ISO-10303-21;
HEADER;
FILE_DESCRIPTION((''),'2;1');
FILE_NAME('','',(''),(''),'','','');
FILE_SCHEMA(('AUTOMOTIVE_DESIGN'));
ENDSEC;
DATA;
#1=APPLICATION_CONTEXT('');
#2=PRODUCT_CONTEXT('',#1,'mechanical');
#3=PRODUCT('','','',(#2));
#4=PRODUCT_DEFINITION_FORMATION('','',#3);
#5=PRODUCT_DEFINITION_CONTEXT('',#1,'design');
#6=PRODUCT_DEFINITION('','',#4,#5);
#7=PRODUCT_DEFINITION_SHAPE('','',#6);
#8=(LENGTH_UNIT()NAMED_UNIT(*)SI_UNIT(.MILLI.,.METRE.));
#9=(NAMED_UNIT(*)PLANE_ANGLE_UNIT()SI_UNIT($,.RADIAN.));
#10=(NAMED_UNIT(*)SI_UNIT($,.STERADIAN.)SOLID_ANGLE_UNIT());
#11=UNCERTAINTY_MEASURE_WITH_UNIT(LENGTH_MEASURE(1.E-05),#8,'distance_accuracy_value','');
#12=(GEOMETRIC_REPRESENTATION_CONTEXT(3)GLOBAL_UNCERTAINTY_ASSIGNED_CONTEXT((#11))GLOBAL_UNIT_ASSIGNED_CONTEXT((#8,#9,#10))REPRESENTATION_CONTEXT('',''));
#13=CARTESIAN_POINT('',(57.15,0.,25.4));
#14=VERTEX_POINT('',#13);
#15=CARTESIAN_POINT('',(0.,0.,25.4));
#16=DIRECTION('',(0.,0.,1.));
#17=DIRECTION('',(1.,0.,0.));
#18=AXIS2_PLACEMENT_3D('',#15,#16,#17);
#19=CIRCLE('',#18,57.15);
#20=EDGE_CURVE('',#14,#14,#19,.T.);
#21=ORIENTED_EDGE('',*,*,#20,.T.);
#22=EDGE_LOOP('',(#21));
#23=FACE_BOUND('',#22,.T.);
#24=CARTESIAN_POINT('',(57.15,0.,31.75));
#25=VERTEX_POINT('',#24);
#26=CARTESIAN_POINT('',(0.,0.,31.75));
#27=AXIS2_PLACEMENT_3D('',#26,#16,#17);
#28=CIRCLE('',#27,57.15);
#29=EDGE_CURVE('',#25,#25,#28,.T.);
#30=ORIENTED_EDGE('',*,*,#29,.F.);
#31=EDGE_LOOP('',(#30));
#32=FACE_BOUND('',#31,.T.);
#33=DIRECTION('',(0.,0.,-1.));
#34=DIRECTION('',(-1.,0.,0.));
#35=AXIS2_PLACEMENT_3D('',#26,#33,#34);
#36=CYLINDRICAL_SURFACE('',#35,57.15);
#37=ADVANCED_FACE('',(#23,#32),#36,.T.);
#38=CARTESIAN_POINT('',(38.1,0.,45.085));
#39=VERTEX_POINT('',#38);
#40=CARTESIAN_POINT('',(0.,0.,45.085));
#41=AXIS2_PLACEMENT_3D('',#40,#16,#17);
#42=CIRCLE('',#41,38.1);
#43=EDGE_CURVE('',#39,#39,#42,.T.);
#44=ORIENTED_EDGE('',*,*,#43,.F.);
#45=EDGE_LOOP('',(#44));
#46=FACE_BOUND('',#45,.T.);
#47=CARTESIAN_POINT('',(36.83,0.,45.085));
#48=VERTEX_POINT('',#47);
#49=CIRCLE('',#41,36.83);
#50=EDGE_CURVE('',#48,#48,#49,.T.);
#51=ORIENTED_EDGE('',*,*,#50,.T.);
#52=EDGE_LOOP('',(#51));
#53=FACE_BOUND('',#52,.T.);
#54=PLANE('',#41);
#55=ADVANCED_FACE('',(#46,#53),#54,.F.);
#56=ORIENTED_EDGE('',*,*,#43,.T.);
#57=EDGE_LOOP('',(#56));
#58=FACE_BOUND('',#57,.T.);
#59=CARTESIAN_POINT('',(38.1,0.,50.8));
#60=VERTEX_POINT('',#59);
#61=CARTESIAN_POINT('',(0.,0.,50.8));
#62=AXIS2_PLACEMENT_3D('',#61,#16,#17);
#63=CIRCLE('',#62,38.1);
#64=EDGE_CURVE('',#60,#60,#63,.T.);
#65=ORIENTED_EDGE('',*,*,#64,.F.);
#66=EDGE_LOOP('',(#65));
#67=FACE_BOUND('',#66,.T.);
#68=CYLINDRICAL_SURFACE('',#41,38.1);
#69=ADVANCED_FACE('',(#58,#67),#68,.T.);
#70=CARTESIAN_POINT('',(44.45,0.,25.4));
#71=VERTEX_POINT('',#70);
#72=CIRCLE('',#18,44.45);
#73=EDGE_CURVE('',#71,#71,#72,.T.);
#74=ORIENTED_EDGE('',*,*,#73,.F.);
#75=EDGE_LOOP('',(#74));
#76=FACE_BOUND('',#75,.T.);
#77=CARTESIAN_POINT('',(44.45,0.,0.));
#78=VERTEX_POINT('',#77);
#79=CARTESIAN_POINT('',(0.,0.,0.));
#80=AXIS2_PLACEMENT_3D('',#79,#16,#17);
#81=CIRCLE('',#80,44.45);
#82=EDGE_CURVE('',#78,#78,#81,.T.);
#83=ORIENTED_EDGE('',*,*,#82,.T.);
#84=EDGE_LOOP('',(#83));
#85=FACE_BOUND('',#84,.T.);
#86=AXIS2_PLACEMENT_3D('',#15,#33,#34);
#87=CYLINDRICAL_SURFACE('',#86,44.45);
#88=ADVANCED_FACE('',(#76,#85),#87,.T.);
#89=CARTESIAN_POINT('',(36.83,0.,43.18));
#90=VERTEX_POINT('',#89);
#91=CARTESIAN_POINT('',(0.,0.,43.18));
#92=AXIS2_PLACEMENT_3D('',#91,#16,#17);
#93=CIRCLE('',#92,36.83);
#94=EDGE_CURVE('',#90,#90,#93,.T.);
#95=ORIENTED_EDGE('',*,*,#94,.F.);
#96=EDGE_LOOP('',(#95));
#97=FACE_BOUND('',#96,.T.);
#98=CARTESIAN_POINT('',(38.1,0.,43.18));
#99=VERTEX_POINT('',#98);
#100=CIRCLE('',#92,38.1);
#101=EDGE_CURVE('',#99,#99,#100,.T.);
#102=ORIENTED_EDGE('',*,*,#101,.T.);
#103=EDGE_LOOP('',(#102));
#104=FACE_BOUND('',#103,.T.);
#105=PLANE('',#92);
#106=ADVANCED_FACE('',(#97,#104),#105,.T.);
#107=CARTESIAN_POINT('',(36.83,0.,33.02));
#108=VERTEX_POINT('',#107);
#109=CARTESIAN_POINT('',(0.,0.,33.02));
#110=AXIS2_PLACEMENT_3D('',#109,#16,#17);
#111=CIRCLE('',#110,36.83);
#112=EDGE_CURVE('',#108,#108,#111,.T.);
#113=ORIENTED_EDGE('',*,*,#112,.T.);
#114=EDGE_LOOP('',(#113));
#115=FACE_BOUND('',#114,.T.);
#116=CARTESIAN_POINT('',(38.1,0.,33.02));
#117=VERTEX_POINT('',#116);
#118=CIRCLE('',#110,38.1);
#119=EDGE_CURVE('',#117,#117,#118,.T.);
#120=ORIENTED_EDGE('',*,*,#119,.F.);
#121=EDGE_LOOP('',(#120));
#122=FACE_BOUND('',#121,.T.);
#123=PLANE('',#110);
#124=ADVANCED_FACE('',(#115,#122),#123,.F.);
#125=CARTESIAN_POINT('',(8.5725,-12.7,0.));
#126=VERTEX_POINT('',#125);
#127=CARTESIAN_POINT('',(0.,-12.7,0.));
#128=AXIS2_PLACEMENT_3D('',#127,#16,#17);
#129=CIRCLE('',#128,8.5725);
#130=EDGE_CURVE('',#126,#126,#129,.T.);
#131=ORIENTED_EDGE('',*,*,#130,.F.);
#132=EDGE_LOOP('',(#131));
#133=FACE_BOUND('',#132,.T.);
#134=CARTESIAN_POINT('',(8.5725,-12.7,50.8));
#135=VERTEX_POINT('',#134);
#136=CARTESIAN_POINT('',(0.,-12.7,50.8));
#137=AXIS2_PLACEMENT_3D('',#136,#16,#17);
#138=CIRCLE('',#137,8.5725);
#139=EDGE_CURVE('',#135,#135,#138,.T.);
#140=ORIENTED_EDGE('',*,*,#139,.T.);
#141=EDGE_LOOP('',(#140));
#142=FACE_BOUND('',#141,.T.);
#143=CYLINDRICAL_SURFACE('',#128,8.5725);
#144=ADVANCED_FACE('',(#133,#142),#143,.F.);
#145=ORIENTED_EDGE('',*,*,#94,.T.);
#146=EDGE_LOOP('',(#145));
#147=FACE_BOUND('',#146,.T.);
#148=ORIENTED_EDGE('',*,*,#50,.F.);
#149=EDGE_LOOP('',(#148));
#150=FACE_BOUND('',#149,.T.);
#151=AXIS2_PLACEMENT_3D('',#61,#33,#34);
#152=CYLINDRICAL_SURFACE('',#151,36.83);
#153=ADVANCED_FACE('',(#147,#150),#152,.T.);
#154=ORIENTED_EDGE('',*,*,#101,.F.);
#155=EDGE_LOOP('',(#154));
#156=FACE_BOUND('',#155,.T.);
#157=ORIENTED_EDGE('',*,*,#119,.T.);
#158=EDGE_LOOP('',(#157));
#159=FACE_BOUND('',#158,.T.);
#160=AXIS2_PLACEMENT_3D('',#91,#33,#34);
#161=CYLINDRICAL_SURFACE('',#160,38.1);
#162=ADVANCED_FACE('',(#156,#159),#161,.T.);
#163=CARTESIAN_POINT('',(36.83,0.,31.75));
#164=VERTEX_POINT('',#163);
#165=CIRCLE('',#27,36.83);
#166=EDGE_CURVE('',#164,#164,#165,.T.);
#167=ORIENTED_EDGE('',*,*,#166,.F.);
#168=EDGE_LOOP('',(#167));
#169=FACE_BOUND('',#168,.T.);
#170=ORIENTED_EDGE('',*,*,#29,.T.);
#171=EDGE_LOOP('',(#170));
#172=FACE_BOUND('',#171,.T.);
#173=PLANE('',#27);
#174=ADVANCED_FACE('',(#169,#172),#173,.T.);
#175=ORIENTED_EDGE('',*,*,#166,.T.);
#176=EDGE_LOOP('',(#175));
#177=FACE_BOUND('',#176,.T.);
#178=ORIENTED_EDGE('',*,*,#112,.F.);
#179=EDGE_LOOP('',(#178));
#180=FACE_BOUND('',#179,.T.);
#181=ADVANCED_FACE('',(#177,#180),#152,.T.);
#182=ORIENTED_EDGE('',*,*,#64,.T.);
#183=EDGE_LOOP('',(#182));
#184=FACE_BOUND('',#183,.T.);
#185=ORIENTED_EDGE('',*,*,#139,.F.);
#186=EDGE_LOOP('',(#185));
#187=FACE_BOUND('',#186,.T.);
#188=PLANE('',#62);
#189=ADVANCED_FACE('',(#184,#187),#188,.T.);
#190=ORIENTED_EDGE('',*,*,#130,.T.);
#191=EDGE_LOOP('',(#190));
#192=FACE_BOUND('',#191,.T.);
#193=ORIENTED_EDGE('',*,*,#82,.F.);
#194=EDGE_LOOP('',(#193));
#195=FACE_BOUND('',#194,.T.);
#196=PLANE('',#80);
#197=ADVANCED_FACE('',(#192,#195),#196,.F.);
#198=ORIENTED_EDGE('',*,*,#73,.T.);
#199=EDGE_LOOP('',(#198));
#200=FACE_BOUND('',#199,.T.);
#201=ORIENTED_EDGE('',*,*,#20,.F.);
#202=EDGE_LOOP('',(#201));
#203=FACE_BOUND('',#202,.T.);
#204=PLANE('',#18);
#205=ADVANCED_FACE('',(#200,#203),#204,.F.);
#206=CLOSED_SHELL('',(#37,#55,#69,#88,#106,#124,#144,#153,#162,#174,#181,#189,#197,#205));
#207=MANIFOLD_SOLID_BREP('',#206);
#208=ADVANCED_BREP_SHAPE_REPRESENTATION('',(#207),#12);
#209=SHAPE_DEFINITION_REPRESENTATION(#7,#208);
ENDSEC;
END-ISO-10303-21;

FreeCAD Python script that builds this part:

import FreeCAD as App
import Part
import Sketcher
from FreeCAD import Vector
Q = App.Units.Quantity

doc = App.newDocument("Part")
body = doc.addObject("PartDesign::Body", "Body")

# Sketch on XY plane
sketch1 = body.newObject("Sketcher::SketchObject", "Sketch")
sketch1.AttachmentSupport = (doc.getObject("XY_Plane"), [""])
sketch1.MapMode = "FlatFace"
sketch1.addGeometry(Part.Circle(Vector(0, 0, 0), Vector(0, 0, 1), 44), False)
sketch1.addConstraint([
    Sketcher.Constraint("Coincident", 0, 3, -1, 1),
    Sketcher.Constraint("Diameter", 0, Q("3.5 in")),
])
pad1 = body.newObject("PartDesign::Pad", "Pad")
pad1.Profile = sketch1
pad1.Length = Q("1 in")

# Sketch on XY plane
sketch2 = body.newObject("Sketcher::SketchObject", "Sketch001")
sketch2.AttachmentSupport = (doc.getObject("XY_Plane"), [""])
sketch2.MapMode = "FlatFace"
sketch2.AttachmentOffset = App.Placement(Vector(0, 0, 1 * 25.4), App.Rotation())
sketch2.addGeometry(Part.Circle(Vector(0, 0, 0), Vector(0, 0, 1), 37), False)
sketch2.addConstraint([
    Sketcher.Constraint("Coincident", 0, 3, -1, 1),
    Sketcher.Constraint("Diameter", 0, Q("2.9 in")),
])
pad2 = body.newObject("PartDesign::Pad", "Pad001")
pad2.Profile = sketch2
pad2.Length = Q("1 in")

# Sketch on XY plane
sketch3 = body.newObject("Sketcher::SketchObject", "Sketch002")
sketch3.AttachmentSupport = (doc.getObject("XY_Plane"), [""])
sketch3.MapMode = "FlatFace"
sketch3.AttachmentOffset = App.Placement(Vector(0, 0, 1 * 25.4), App.Rotation())
sketch3.addGeometry(Part.Circle(Vector(0, 0, 0), Vector(0, 0, 1), 38), False)
sketch3.addConstraint([
    Sketcher.Constraint("Coincident", 0, 3, -1, 1),
    Sketcher.Constraint("Diameter", 0, Q("3 in")),
])
pad3 = body.newObject("PartDesign::Pad", "Pad002")
pad3.Profile = sketch3
pad3.Length = Q("0.225 in")

# Sketch on XY plane
sketch4 = body.newObject("Sketcher::SketchObject", "Sketch003")
sketch4.AttachmentSupport = (doc.getObject("XY_Plane"), [""])
sketch4.MapMode = "FlatFace"
sketch4.AttachmentOffset = App.Placement(Vector(0, 0, 1.775 * 25.4), App.Rotation())
sketch4.addGeometry(Part.Circle(Vector(0, 0, 0), Vector(0, 0, 1), 38), False)
sketch4.addConstraint([
    Sketcher.Constraint("Coincident", 0, 3, -1, 1),
    Sketcher.Constraint("Diameter", 0, Q("3 in")),
])
pad4 = body.newObject("PartDesign::Pad", "Pad003")
pad4.Profile = sketch4
pad4.Length = Q("0.225 in")

# Sketch on XY plane
sketch5 = body.newObject("Sketcher::SketchObject", "Sketch004")
sketch5.AttachmentSupport = (doc.getObject("XY_Plane"), [""])
sketch5.MapMode = "FlatFace"
sketch5.AttachmentOffset = App.Placement(Vector(0, 0, 1.3 * 25.4), App.Rotation())
sketch5.addGeometry(Part.Circle(Vector(0, 0, 0), Vector(0, 0, 1), 38), False)
sketch5.addConstraint([
    Sketcher.Constraint("Coincident", 0, 3, -1, 1),
    Sketcher.Constraint("Diameter", 0, Q("3 in")),
])
pad5 = body.newObject("PartDesign::Pad", "Pad004")
pad5.Profile = sketch5
pad5.Length = Q("0.4 in")

# Sketch on XY plane
sketch6 = body.newObject("Sketcher::SketchObject", "Sketch005")
sketch6.AttachmentSupport = (doc.getObject("XY_Plane"), [""])
sketch6.MapMode = "FlatFace"
sketch6.AttachmentOffset = App.Placement(Vector(0, 0, 1 * 25.4), App.Rotation())
sketch6.addGeometry(Part.Circle(Vector(0, 0, 0), Vector(0, 0, 1), 57), False)
sketch6.addConstraint([
    Sketcher.Constraint("Coincident", 0, 3, -1, 1),
    Sketcher.Constraint("Diameter", 0, Q("4.5 in")),
])
pad6 = body.newObject("PartDesign::Pad", "Pad005")
pad6.Profile = sketch6
pad6.Length = Q("0.25 in")

# Sketch on XY plane
sketch7 = body.newObject("Sketcher::SketchObject", "Sketch006")
sketch7.AttachmentSupport = (doc.getObject("XY_Plane"), [""])
sketch7.MapMode = "FlatFace"
sketch7.AttachmentOffset = App.Placement(Vector(0, 0, 2 * 25.4), App.Rotation())
sketch7.addGeometry(Part.Circle(Vector(0, -13, 0), Vector(0, 0, 1), 9), False)
sketch7.addConstraint([
    Sketcher.Constraint("PointOnObject", 0, 3, -2),
    Sketcher.Constraint("Diameter", 0, Q("0.675 in")),
    Sketcher.Constraint("DistanceY", 0, 3, -1, 1, Q("0.5 in")),
])
pocket1 = body.newObject("PartDesign::Pocket", "Pocket")
pocket1.Profile = sketch7
pocket1.Type = "ThroughAll"
pocket1.Midplane = True

doc.recompute()
